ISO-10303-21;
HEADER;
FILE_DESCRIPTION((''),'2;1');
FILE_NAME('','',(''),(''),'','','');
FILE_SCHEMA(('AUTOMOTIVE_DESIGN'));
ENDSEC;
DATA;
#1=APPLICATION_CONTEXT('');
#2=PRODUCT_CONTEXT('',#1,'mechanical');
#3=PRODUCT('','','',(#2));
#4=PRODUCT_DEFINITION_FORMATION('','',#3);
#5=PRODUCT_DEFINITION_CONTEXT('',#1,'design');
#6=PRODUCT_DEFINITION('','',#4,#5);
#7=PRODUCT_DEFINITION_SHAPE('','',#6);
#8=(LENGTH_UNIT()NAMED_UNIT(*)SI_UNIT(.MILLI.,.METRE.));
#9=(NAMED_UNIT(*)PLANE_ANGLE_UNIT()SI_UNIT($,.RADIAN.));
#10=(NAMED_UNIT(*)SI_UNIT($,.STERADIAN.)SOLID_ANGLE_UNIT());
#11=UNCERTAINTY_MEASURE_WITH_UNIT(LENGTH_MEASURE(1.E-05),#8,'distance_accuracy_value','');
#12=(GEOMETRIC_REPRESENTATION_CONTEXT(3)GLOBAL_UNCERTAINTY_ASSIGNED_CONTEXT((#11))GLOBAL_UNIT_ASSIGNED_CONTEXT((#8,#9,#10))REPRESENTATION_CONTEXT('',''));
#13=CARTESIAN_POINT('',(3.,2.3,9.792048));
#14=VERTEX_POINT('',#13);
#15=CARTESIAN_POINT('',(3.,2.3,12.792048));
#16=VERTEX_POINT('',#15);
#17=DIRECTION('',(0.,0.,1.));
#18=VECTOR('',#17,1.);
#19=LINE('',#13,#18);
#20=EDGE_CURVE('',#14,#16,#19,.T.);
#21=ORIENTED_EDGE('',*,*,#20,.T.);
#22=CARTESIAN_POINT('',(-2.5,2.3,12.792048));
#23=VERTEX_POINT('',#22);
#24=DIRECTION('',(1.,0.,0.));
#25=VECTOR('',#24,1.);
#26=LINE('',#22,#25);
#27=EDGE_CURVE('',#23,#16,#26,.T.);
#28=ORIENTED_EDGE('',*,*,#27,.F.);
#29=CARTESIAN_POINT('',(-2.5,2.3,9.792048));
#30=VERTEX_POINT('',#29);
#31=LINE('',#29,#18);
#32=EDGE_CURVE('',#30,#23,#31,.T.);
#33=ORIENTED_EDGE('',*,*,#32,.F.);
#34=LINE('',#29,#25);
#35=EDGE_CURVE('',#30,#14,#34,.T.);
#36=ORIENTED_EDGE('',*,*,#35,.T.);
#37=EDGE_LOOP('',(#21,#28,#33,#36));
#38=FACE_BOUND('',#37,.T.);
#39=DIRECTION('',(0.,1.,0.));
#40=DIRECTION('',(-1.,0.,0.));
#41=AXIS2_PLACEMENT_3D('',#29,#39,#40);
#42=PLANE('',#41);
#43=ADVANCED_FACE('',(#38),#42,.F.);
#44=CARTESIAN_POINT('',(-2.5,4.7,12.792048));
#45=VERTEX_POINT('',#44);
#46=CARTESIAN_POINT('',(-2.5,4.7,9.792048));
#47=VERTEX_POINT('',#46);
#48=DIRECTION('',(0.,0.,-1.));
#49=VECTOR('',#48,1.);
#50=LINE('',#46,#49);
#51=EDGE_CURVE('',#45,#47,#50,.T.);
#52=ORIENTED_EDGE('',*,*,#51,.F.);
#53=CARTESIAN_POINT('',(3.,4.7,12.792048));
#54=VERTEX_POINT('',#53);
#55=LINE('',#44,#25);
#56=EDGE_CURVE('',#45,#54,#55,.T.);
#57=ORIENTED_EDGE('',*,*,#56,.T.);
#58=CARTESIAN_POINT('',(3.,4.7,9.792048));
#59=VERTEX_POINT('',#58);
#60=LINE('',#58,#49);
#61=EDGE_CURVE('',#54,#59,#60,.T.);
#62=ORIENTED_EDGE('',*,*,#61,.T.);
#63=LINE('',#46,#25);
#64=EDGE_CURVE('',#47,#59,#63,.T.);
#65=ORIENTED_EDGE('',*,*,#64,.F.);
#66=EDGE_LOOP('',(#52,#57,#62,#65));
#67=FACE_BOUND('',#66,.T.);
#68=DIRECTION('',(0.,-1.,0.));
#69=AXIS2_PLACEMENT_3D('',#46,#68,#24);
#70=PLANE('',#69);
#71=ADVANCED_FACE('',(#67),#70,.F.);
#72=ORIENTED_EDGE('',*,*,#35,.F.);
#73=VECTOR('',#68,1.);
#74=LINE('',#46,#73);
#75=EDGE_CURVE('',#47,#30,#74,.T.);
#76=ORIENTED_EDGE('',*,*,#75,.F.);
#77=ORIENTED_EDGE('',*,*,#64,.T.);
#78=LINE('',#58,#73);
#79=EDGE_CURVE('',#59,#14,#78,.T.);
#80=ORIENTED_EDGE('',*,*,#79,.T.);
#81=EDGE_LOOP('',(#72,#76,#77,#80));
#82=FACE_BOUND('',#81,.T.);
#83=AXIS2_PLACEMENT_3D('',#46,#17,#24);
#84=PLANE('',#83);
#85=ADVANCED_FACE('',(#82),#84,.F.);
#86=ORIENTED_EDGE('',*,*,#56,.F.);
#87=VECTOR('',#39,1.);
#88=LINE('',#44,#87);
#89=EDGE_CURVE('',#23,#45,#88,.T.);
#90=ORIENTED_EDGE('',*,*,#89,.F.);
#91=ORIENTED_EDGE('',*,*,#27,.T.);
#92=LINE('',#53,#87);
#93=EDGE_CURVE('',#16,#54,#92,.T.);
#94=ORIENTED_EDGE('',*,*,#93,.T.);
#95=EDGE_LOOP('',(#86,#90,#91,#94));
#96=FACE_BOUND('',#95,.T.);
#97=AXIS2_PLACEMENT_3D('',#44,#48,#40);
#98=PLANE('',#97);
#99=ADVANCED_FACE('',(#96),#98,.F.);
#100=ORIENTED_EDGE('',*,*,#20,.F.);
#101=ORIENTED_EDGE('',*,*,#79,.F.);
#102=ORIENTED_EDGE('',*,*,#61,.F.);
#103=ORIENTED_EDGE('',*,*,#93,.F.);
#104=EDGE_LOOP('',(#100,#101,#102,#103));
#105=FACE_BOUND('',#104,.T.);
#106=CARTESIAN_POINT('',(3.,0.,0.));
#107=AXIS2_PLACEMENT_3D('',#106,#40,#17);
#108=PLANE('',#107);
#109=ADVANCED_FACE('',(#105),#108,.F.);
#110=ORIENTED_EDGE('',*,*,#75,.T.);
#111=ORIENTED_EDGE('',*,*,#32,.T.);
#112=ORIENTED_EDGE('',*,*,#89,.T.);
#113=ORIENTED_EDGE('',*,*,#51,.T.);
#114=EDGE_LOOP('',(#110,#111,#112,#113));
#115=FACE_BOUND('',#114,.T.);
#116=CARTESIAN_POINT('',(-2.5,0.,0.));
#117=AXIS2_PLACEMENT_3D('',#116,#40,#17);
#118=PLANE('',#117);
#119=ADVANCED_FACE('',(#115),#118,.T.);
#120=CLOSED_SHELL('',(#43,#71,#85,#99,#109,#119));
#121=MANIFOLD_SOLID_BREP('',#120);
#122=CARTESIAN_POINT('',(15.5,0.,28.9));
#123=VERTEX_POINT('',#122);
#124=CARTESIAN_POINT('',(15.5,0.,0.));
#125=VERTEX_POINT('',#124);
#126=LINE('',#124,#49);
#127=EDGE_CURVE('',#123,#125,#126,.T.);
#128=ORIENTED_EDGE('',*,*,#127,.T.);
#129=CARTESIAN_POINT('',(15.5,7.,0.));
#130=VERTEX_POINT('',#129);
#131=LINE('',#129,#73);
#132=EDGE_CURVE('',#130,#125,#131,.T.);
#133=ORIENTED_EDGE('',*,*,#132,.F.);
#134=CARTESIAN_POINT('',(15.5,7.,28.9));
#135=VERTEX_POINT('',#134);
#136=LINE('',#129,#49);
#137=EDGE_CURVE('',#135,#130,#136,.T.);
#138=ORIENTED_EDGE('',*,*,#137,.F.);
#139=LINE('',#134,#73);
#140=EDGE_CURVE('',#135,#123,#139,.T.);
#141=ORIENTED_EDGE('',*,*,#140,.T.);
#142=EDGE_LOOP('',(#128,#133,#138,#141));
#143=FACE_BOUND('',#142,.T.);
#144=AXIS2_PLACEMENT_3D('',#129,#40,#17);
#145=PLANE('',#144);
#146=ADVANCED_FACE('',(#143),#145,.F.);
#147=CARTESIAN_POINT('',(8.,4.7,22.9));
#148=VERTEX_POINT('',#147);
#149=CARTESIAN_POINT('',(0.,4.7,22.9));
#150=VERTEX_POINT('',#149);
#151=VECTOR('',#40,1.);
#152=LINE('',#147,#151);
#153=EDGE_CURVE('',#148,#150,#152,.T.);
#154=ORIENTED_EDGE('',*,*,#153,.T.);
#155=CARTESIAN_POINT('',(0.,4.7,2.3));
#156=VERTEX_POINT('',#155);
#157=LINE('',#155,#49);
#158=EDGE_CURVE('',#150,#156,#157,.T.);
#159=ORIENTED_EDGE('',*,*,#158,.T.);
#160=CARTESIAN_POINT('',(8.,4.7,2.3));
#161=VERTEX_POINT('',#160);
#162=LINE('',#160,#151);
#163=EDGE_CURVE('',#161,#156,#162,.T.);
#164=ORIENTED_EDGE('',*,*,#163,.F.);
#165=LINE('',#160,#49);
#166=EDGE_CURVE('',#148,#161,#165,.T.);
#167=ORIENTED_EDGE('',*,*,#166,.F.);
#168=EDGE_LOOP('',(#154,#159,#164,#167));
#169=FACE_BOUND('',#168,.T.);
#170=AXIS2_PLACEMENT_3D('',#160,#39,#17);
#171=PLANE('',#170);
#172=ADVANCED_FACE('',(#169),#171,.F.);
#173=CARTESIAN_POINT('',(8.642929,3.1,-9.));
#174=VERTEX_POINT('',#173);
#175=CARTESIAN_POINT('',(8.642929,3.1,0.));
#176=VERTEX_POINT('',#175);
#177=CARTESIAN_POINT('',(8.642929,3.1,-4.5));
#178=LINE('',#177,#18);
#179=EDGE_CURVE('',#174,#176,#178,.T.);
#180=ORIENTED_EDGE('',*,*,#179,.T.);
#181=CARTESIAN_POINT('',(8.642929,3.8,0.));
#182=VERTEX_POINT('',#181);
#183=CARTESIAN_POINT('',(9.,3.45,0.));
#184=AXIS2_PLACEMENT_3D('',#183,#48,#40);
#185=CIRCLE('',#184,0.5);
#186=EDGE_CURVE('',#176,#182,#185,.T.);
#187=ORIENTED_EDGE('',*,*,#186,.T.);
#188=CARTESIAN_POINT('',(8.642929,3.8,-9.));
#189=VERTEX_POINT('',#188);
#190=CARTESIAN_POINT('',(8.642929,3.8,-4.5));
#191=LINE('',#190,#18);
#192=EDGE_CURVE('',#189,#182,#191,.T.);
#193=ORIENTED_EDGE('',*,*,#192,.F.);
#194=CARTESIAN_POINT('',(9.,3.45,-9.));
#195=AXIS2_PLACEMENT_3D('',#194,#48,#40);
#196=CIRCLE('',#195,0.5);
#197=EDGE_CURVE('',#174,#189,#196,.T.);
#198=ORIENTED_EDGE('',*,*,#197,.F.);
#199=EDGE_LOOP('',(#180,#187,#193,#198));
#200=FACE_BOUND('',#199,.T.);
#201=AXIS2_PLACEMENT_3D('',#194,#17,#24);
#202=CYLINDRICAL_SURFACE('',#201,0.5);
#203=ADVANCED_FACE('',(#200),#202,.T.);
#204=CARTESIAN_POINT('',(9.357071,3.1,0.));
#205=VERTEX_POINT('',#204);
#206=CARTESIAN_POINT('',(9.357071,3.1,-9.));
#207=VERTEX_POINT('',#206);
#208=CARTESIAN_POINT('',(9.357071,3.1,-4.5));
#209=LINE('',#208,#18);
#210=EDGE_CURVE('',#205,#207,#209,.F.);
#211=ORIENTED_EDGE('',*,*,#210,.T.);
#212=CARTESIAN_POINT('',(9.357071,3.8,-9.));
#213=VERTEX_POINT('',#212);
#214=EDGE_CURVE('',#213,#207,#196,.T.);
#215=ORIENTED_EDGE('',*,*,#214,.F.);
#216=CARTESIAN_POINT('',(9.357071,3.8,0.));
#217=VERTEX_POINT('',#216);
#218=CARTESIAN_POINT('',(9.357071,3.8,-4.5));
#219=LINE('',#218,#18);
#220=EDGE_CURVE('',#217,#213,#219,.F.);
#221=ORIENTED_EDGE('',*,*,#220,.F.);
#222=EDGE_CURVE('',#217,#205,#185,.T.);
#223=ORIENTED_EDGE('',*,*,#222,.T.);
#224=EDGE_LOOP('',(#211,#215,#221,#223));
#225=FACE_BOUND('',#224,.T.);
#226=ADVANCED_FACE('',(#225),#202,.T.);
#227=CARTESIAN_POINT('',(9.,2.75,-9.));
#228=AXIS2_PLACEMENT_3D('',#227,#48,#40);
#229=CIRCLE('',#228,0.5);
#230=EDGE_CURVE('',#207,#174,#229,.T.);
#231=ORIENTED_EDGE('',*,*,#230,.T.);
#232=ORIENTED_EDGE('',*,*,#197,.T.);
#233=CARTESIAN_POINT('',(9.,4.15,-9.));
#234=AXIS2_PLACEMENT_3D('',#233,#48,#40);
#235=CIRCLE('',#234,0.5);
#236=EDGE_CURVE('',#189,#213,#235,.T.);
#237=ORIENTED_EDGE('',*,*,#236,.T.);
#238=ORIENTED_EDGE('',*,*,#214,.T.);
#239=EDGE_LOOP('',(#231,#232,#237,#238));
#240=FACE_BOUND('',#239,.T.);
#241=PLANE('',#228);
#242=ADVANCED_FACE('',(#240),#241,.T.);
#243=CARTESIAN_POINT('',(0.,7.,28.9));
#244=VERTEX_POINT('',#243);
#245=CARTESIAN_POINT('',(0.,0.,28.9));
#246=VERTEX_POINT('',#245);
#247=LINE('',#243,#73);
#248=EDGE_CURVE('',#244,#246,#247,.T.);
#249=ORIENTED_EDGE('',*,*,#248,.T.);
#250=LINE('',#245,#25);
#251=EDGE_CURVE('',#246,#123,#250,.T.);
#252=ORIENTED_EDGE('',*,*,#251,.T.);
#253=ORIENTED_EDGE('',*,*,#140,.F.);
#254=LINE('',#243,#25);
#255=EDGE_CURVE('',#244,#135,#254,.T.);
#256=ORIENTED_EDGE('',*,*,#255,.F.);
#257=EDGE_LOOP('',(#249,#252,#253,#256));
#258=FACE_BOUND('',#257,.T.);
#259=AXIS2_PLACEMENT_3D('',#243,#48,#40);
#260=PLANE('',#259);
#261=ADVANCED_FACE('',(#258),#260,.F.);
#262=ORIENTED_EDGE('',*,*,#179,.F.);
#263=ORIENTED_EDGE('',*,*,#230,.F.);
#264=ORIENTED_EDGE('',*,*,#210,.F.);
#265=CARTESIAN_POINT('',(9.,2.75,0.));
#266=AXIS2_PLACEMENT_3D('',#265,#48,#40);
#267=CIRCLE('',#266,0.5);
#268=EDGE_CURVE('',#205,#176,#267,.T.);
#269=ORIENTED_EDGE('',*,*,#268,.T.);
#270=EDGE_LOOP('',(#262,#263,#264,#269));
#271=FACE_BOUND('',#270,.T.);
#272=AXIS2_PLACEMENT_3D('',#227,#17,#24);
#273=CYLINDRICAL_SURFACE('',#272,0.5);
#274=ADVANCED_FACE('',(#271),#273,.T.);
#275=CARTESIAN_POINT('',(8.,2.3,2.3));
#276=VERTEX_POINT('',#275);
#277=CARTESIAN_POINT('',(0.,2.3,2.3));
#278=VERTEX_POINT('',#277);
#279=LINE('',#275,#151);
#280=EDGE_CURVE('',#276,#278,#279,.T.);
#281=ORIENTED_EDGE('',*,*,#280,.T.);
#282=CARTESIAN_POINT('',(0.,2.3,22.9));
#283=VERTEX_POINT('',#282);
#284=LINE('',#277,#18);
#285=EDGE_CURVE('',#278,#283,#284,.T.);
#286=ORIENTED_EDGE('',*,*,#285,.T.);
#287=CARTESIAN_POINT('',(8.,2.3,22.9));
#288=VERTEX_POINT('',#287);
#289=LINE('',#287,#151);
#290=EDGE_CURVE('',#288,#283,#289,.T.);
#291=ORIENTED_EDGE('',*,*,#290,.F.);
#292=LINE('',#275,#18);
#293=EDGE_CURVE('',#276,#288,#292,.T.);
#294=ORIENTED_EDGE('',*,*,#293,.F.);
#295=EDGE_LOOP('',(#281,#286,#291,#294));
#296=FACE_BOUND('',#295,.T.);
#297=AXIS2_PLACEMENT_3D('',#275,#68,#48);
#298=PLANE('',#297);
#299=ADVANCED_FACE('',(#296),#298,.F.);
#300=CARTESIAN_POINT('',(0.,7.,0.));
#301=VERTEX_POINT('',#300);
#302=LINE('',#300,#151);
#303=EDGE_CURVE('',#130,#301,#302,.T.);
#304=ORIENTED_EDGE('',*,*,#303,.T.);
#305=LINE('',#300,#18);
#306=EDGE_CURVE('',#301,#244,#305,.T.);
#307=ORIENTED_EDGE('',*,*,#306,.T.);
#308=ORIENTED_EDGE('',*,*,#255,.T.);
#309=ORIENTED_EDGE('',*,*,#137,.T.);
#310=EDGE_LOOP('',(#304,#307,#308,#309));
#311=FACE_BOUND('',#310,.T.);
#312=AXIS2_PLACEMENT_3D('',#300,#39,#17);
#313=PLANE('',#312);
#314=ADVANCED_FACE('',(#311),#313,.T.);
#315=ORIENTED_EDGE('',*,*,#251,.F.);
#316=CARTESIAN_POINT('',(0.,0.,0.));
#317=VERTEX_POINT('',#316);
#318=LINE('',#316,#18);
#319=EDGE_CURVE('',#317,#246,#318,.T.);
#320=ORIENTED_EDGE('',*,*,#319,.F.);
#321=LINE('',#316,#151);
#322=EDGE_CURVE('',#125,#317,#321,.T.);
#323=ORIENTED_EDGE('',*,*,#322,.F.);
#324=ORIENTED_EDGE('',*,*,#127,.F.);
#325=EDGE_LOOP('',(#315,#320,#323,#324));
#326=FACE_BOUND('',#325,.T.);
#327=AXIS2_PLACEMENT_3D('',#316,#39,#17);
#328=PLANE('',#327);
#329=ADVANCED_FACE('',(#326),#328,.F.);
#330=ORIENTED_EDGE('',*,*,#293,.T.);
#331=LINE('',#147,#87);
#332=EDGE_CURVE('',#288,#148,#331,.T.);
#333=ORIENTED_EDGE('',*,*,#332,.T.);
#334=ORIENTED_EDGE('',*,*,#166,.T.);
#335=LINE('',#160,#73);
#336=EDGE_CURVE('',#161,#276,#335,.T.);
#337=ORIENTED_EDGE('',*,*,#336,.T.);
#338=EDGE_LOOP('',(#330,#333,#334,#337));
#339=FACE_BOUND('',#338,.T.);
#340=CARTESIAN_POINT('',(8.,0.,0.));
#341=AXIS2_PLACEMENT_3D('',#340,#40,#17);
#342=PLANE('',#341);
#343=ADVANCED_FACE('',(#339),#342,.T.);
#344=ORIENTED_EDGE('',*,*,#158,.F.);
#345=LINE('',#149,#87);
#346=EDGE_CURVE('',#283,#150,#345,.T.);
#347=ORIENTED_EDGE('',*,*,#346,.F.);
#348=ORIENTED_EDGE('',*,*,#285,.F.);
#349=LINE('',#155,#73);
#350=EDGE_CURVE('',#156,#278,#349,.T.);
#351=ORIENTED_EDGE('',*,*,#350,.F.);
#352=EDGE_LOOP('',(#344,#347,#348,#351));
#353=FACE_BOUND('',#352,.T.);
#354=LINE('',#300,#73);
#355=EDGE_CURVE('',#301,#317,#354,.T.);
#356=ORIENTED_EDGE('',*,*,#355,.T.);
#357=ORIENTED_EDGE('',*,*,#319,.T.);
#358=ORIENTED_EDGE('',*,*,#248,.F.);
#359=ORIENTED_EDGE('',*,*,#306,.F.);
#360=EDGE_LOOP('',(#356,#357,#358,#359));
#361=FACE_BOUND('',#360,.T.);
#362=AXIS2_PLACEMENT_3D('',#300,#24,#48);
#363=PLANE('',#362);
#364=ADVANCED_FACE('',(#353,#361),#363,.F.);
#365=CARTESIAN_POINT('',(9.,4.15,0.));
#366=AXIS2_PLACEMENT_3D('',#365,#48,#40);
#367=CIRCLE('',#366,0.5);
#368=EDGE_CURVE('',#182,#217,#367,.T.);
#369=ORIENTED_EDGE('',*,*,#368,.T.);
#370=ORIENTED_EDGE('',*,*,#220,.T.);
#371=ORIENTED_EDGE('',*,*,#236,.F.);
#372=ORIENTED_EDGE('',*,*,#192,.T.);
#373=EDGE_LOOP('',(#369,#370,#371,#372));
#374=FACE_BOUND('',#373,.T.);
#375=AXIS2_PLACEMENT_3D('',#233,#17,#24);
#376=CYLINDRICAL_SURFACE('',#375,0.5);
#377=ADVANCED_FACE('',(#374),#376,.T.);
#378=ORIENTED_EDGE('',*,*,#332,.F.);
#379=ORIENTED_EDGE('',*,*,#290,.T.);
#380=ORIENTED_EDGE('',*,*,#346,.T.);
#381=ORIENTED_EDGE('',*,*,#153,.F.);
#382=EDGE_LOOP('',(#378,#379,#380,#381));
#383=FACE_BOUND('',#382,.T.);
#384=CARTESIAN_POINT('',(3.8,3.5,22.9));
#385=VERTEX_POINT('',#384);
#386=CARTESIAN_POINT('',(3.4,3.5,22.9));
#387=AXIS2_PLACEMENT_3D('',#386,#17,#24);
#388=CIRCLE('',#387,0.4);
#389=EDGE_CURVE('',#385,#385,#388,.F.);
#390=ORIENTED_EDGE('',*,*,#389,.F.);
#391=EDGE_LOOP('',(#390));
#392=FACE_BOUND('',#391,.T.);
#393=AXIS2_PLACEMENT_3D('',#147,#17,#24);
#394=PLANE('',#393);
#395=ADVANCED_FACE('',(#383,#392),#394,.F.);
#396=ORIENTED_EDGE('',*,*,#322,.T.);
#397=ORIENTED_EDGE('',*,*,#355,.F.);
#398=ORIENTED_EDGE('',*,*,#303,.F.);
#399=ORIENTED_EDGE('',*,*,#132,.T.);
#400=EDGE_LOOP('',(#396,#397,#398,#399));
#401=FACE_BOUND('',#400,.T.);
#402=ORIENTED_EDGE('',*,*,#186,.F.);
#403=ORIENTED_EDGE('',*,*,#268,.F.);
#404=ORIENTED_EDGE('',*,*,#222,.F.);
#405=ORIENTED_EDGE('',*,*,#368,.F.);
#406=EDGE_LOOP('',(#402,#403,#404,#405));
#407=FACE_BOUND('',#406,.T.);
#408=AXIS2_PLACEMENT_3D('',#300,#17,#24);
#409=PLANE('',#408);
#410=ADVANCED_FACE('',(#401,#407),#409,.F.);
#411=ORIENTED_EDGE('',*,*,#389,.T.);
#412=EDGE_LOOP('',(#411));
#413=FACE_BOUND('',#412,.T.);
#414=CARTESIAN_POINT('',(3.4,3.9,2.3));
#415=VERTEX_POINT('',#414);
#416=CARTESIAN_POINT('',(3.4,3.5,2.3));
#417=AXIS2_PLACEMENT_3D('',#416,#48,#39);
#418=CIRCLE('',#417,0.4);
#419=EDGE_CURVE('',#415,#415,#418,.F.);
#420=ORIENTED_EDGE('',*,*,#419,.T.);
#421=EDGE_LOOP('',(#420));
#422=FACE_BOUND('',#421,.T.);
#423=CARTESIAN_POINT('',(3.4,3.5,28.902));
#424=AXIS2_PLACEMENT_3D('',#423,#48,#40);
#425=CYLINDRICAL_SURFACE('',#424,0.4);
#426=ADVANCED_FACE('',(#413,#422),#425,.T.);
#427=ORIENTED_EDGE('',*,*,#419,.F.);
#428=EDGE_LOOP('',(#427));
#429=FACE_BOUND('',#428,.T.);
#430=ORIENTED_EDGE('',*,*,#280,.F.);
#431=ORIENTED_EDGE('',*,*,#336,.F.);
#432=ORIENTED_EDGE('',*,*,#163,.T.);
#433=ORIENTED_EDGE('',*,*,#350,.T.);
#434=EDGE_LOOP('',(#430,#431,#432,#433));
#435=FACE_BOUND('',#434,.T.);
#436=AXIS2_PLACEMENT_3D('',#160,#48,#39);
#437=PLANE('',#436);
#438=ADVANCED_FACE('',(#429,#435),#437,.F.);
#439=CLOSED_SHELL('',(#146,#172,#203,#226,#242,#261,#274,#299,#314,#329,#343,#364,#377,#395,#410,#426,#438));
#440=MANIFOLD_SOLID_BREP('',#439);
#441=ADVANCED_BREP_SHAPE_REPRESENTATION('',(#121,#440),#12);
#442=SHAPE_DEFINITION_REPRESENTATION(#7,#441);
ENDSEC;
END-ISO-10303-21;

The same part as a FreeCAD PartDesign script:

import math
import FreeCAD as App
import Part
import Sketcher
Q = App.Units.Quantity

doc = App.newDocument("Part")
body = doc.addObject("PartDesign::Body", "Body")

# Sketch on XZ plane
sketch1 = body.newObject("Sketcher::SketchObject", "Sketch")
sketch1.AttachmentSupport = (doc.getObject("XZ_Plane"), [""])
sketch1.MapMode = "FlatFace"
sketch1.addGeometry([
    Part.LineSegment(App.Vector(0, 0, 0), App.Vector(0, 28.9, 0)),
    Part.LineSegment(App.Vector(0, 28.9, 0), App.Vector(15.5, 28.9, 0)),
    Part.LineSegment(App.Vector(15.5, 28.9, 0), App.Vector(15.5, 0, 0)),
    Part.LineSegment(App.Vector(15.5, 0, 0), App.Vector(0, 0, 0)),
], False)
sketch1.addConstraint([
    Sketcher.Constraint("Coincident", 0, 2, 1, 1),
    Sketcher.Constraint("Coincident", 1, 2, 2, 1),
    Sketcher.Constraint("Coincident", 2, 2, 3, 1),
    Sketcher.Constraint("Coincident", 3, 2, 0, 1),
    Sketcher.Constraint("Vertical", 0),
    Sketcher.Constraint("Horizontal", 1),
    Sketcher.Constraint("Vertical", 2),
    Sketcher.Constraint("Horizontal", 3),
    Sketcher.Constraint("Coincident", 3, 2, -1, 1),
    Sketcher.Constraint("DistanceX", 1, 1, 1, 2, Q("15.5 mm")),
    Sketcher.Constraint("DistanceY", 0, 1, 0, 2, Q("28.9 mm")),
])
pad1 = body.newObject("PartDesign::Pad", "Pad")
pad1.Profile = sketch1
pad1.Length = 7
pad1.Reversed = True

# Sketch on YZ plane
sketch2 = body.newObject("Sketcher::SketchObject", "Sketch001")
sketch2.AttachmentSupport = (doc.getObject("YZ_Plane"), [""])
sketch2.MapMode = "FlatFace"
sketch2.addGeometry([
    Part.LineSegment(App.Vector(4.7, 2.3, 0), App.Vector(2.3, 2.3, 0)),
    Part.LineSegment(App.Vector(2.3, 2.3, 0), App.Vector(2.3, 22.9, 0)),
    Part.LineSegment(App.Vector(2.3, 22.9, 0), App.Vector(4.7, 22.9, 0)),
    Part.LineSegment(App.Vector(4.7, 22.9, 0), App.Vector(4.7, 2.3, 0)),
], False)
sketch2.addConstraint([
    Sketcher.Constraint("Coincident", 0, 2, 1, 1),
    Sketcher.Constraint("Coincident", 1, 2, 2, 1),
    Sketcher.Constraint("Coincident", 2, 2, 3, 1),
    Sketcher.Constraint("Coincident", 3, 2, 0, 1),
    Sketcher.Constraint("Horizontal", 0),
    Sketcher.Constraint("Vertical", 1),
    Sketcher.Constraint("Horizontal", 2),
    Sketcher.Constraint("Vertical", 3),
    Sketcher.Constraint("DistanceX", 0, 2, 0, 1, Q("2.4 mm")),
    Sketcher.Constraint("DistanceY", 1, 1, 1, 2, Q("20.6 mm")),
    Sketcher.Constraint("DistanceX", -1, 1, 0, 2, Q("2.3 mm")),
    Sketcher.Constraint("DistanceY", -1, 1, 0, 2, Q("2.3 mm")),
])
pocket1 = body.newObject("PartDesign::Pocket", "Pocket")
pocket1.Profile = sketch2
pocket1.Length = 8
pocket1.Reversed = True

# Sketch on XY plane
sketch3 = body.newObject("Sketcher::SketchObject", "Sketch002")
sketch3.AttachmentSupport = (doc.getObject("XY_Plane"), [""])
sketch3.MapMode = "FlatFace"
sketch3.AttachmentOffset = App.Placement(App.Vector(0, 0, 2.3), App.Rotation())
sketch3.addGeometry(Part.Circle(App.Vector(3.4, 3.5, 0), App.Vector(0, 0, 1), 0.4), False)
sketch3.addConstraint([
    Sketcher.Constraint("Diameter", 0, Q("0.8 mm")),
    Sketcher.Constraint("DistanceX", -1, 1, 0, 3, Q("3.4 mm")),
    Sketcher.Constraint("DistanceY", -1, 1, 0, 3, Q("3.5 mm")),
])
pad2 = body.newObject("PartDesign::Pad", "Pad001")
pad2.Profile = sketch3
pad2.Type = "UpToFirst"

# Sketch on XY plane
sketch4 = body.newObject("Sketcher::SketchObject", "Sketch003")
sketch4.AttachmentSupport = (doc.getObject("XY_Plane"), [""])
sketch4.MapMode = "FlatFace"
sketch4.addGeometry([
    Part.ArcOfCircle(Part.Circle(App.Vector(9, 3.45, 0), App.Vector(0, 0, 1), 0.5), math.radians(135.572996), math.radians(224.427004)),
    Part.ArcOfCircle(Part.Circle(App.Vector(9, 4.15, 0), App.Vector(0, 0, 1), 0.5), math.radians(-44.427004), math.radians(224.427004)),
    Part.ArcOfCircle(Part.Circle(App.Vector(9, 3.45, 0), App.Vector(0, 0, 1), 0.5), math.radians(-44.427004), math.radians(44.427004)),
    Part.ArcOfCircle(Part.Circle(App.Vector(9, 2.75, 0), App.Vector(0, 0, 1), 0.5), math.radians(135.572996), math.radians(404.427004)),
], False)
sketch4.addConstraint([
    Sketcher.Constraint("Coincident", 0, 1, 1, 2),
    Sketcher.Constraint("Coincident", 1, 1, 2, 2),
    Sketcher.Constraint("Coincident", 2, 1, 3, 2),
    Sketcher.Constraint("Coincident", 3, 1, 0, 2),
    Sketcher.Constraint("Coincident", 2, 3, 0, 3),
    Sketcher.Constraint("Equal", 0, 1),
    Sketcher.Constraint("Equal", 1, 2),
    Sketcher.Constraint("Equal", 2, 3),
    Sketcher.Constraint("Horizontal", 0, 1, 1, 1),
    Sketcher.Constraint("Horizontal", 2, 1, 3, 1),
    Sketcher.Constraint("Vertical", 1, 1, 2, 1),
    Sketcher.Constraint("Radius", 0, Q("0.5 mm")),
    Sketcher.Constraint("DistanceX", -1, 1, 0, 3, Q("9 mm")),
    Sketcher.Constraint("DistanceY", -1, 1, 0, 1, Q("3.8 mm")),
    Sketcher.Constraint("DistanceY", -1, 1, 2, 1, Q("3.1 mm")),
])
pad3 = body.newObject("PartDesign::Pad", "Pad002")
pad3.Profile = sketch4
pad3.Length = 9
pad3.Reversed = True
body2 = doc.addObject("PartDesign::Body", "Body001")

# Sketch on YZ plane
sketch5 = body2.newObject("Sketcher::SketchObject", "Sketch004")
sketch5.AttachmentSupport = (doc.getObject("YZ_Plane001"), [""])
sketch5.MapMode = "FlatFace"
sketch5.AttachmentOffset = App.Placement(App.Vector(0, 0, 3), App.Rotation())
sketch5.addGeometry([
    Part.LineSegment(App.Vector(4.7, 9.792048, 0), App.Vector(2.3, 9.792048, 0)),
    Part.LineSegment(App.Vector(2.3, 9.792048, 0), App.Vector(2.3, 12.792048, 0)),
    Part.LineSegment(App.Vector(2.3, 12.792048, 0), App.Vector(4.7, 12.792048, 0)),
    Part.LineSegment(App.Vector(4.7, 12.792048, 0), App.Vector(4.7, 9.792048, 0)),
], False)
sketch5.addConstraint([
    Sketcher.Constraint("Coincident", 0, 2, 1, 1),
    Sketcher.Constraint("Coincident", 1, 2, 2, 1),
    Sketcher.Constraint("Coincident", 2, 2, 3, 1),
    Sketcher.Constraint("Coincident", 3, 2, 0, 1),
    Sketcher.Constraint("Horizontal", 0),
    Sketcher.Constraint("Vertical", 1),
    Sketcher.Constraint("Horizontal", 2),
    Sketcher.Constraint("Vertical", 3),
    Sketcher.Constraint("DistanceY", 1, 1, 1, 2, Q("3 mm")),
    Sketcher.Constraint("DistanceX", 0, 2, 0, 1, Q("2.4 mm")),
    Sketcher.Constraint("DistanceX", -1, 1, 0, 2, Q("2.3 mm")),
    Sketcher.Constraint("DistanceY", -1, 1, 0, 2, Q("9.792048 mm")),
])
pad4 = body2.newObject("PartDesign::Pad", "Pad003")
pad4.Profile = sketch5
pad4.Length = 5.5
pad4.Reversed = True

doc.recompute()
